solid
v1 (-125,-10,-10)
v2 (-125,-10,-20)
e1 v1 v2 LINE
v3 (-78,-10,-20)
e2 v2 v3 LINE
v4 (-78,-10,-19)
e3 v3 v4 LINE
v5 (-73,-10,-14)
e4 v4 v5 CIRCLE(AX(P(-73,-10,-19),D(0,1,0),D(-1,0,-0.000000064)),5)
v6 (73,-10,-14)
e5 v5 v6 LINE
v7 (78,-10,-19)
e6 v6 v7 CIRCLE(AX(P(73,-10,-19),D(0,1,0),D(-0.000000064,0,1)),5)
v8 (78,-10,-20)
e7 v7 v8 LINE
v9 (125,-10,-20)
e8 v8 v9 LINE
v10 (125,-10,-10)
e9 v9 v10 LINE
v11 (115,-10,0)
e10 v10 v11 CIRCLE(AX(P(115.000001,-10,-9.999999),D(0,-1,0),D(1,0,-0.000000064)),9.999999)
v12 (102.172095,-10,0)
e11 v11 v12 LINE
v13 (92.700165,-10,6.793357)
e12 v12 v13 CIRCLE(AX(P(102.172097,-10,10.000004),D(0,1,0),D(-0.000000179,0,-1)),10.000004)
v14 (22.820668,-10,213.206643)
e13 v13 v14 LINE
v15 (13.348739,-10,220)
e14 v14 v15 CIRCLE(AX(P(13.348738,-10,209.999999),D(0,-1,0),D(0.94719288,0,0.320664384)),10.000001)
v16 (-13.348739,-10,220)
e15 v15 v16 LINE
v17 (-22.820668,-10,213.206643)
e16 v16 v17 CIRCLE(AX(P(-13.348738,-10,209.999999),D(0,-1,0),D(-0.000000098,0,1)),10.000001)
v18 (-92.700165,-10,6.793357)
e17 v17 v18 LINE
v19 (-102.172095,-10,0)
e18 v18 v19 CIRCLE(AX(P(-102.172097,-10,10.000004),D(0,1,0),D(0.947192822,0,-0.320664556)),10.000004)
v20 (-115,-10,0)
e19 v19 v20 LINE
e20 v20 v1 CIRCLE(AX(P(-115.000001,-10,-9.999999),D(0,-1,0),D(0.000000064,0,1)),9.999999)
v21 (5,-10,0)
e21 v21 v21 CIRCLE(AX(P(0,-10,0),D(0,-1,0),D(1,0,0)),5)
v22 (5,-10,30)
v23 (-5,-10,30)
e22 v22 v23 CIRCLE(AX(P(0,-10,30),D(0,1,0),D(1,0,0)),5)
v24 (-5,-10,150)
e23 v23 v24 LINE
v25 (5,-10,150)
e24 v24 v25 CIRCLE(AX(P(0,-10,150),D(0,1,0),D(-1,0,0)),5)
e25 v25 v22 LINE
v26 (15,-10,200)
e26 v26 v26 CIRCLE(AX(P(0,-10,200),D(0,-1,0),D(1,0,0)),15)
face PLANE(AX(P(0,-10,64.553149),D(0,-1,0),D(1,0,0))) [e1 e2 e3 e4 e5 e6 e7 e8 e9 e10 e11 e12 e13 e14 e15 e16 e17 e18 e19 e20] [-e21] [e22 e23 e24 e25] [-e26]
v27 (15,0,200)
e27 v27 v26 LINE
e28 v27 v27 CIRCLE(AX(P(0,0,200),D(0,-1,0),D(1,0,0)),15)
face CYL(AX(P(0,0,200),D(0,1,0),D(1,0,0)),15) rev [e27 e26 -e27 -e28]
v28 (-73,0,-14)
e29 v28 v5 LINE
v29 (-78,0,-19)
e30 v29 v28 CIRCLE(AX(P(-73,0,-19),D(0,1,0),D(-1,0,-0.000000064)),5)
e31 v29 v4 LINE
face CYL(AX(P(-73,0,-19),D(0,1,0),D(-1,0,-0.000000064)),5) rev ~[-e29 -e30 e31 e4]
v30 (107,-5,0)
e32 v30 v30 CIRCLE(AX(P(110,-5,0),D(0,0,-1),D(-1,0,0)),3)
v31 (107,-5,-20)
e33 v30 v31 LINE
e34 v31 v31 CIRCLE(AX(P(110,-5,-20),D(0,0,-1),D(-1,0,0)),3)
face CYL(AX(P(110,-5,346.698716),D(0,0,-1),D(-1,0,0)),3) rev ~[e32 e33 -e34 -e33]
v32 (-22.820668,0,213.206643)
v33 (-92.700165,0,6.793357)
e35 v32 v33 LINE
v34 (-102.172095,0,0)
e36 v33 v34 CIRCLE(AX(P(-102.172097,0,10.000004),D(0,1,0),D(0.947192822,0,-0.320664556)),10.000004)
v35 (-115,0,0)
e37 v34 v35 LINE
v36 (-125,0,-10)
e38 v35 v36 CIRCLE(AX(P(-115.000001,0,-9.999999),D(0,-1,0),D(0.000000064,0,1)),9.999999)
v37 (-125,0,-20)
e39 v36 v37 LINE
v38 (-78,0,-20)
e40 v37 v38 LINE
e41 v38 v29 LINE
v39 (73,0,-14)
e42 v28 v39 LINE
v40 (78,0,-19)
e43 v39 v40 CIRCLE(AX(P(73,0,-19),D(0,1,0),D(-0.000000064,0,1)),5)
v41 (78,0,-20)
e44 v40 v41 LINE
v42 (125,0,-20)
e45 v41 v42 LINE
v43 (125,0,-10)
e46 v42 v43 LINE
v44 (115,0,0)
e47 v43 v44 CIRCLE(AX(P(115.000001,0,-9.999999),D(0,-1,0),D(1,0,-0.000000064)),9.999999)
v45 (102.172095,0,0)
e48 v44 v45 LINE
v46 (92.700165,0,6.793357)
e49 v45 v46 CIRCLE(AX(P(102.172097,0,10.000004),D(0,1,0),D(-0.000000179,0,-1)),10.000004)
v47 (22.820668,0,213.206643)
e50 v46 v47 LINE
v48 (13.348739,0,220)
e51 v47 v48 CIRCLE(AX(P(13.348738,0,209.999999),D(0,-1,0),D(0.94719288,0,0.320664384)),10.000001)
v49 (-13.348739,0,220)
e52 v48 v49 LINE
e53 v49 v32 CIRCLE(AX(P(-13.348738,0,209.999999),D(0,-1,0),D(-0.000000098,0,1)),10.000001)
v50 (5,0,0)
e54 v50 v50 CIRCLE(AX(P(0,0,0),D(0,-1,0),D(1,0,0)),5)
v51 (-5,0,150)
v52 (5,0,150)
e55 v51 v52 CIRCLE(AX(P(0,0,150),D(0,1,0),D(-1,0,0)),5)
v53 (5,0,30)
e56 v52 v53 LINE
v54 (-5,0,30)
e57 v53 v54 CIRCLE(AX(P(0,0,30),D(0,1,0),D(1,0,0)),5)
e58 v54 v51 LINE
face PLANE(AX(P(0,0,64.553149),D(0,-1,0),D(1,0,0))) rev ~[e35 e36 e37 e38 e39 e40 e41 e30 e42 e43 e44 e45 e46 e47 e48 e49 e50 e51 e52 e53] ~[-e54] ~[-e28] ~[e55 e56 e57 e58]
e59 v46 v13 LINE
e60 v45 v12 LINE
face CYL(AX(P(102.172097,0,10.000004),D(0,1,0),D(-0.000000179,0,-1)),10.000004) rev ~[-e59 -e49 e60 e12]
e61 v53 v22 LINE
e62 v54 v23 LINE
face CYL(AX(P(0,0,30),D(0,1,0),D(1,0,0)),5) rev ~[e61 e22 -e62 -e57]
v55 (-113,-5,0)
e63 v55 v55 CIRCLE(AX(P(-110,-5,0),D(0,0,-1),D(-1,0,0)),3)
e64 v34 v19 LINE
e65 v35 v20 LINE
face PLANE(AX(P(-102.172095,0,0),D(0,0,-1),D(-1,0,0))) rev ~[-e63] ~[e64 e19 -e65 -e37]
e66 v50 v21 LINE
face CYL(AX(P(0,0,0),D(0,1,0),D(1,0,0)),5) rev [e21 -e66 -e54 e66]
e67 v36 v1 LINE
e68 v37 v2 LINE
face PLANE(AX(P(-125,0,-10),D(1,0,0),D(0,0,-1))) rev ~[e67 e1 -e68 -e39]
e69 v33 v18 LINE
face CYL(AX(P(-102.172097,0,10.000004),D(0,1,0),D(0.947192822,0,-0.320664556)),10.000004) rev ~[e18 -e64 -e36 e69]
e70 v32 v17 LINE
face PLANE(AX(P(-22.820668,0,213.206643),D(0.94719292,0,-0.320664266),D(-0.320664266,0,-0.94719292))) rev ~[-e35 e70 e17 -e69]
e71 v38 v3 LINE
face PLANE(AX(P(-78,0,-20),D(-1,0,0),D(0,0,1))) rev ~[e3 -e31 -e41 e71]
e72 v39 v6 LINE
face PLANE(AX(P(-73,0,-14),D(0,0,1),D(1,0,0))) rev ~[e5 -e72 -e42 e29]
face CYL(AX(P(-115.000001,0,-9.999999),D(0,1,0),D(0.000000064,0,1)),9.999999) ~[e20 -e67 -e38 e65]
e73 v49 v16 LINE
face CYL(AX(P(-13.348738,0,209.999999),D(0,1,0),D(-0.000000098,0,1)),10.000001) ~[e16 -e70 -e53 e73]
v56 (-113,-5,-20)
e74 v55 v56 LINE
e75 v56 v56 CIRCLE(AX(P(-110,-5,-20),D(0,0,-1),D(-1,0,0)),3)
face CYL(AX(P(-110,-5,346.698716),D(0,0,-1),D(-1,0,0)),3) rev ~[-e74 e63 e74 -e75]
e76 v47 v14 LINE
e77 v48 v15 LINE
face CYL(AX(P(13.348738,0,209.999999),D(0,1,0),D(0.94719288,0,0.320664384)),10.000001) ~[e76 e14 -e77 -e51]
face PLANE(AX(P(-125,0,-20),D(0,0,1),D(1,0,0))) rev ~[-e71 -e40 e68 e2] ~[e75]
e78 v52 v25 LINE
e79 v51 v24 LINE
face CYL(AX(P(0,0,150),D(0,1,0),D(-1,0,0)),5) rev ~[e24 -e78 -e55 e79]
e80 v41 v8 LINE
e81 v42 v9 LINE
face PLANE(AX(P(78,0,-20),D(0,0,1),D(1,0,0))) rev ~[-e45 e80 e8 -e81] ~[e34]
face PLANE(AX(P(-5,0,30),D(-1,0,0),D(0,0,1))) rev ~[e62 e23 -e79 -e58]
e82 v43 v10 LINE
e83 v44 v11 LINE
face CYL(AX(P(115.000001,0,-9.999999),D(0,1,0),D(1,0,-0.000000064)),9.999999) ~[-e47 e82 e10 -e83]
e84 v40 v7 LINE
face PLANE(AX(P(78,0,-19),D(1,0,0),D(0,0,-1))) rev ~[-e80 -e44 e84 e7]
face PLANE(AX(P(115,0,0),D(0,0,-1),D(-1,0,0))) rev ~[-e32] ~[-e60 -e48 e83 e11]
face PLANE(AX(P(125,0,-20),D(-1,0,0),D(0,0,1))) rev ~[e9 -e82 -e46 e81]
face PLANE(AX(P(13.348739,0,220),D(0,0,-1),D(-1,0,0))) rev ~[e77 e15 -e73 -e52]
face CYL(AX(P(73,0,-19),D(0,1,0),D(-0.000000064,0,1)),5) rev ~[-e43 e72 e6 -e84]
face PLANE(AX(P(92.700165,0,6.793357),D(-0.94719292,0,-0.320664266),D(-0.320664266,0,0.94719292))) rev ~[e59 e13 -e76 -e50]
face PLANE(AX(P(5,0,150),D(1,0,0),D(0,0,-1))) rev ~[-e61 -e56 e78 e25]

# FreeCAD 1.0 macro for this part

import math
import FreeCAD as App
import Part
import Sketcher

V = App.Vector

doc = App.newDocument("Part")
body = doc.addObject("PartDesign::Body", "Body")

# Sketch on XZ plane
sketch1 = body.newObject("Sketcher::SketchObject", "Sketch")
sketch1.AttachmentSupport = (doc.getObject("XZ_Plane"), [""])
sketch1.MapMode = "FlatFace"
sketch1.addGeometry(Part.LineSegment(V(-125, -10, 0), V(-125, -20, 0)), False)
sketch1.addGeometry(Part.LineSegment(V(-125, -20, 0), V(-78, -20, 0)), False)
sketch1.addGeometry(Part.LineSegment(V(-78, -20, 0), V(-78, -19, 0)), False)
sketch1.addGeometry(Part.ArcOfCircle(Part.Circle(V(-73, -19, 0), V(0, 0, 1), 5), math.radians(90), math.radians(180)), False)
sketch1.addGeometry(Part.LineSegment(V(-73, -14, 0), V(73, -14, 0)), False)
sketch1.addGeometry(Part.ArcOfCircle(Part.Circle(V(73, -19, 0), V(0, 0, 1), 5), math.radians(0), math.radians(90)), False)
sketch1.addGeometry(Part.LineSegment(V(78, -19, 0), V(78, -20, 0)), False)
sketch1.addGeometry(Part.LineSegment(V(78, -20, 0), V(125, -20, 0)), False)
sketch1.addGeometry(Part.LineSegment(V(125, -20, 0), V(125, -10, 0)), False)
sketch1.addGeometry(Part.ArcOfCircle(Part.Circle(V(115, -10, 0), V(0, 0, 1), 10), math.radians(0), math.radians(90)), False)
sketch1.addGeometry(Part.LineSegment(V(115, 0, 0), V(102.2, 0, 0)), False)
sketch1.addGeometry(Part.ArcOfCircle(Part.Circle(V(102.2, 10, 0), V(0, 0, 1), 10), math.radians(-161), math.radians(-90)), False)
sketch1.addGeometry(Part.LineSegment(V(92.7, 6.8, 0), V(22.8, 213.2, 0)), False)
sketch1.addGeometry(Part.ArcOfCircle(Part.Circle(V(13.3, 210, 0), V(0, 0, 1), 10), math.radians(19), math.radians(90)), False)
sketch1.addGeometry(Part.LineSegment(V(13.3, 220, 0), V(-13.3, 220, 0)), False)
sketch1.addGeometry(Part.ArcOfCircle(Part.Circle(V(-13.3, 210, 0), V(0, 0, 1), 10), math.radians(90), math.radians(161)), False)
sketch1.addGeometry(Part.LineSegment(V(-22.8, 213.2, 0), V(-92.7, 6.8, 0)), False)
sketch1.addGeometry(Part.ArcOfCircle(Part.Circle(V(-102.2, 10, 0), V(0, 0, 1), 10), math.radians(-90), math.radians(-19)), False)
sketch1.addGeometry(Part.LineSegment(V(-102.2, 0, 0), V(-115, 0, 0)), False)
sketch1.addGeometry(Part.ArcOfCircle(Part.Circle(V(-115, -10, 0), V(0, 0, 1), 10), math.radians(90), math.radians(180)), False)
sketch1.addGeometry(Part.Circle(V(0, 0, 0), V(0, 0, 1), 5), False)
sketch1.addGeometry(Part.LineSegment(V(-5, 30, 0), V(-5, 150, 0)), False)
sketch1.addGeometry(Part.ArcOfCircle(Part.Circle(V(0, 150, 0), V(0, 0, 1), 5), math.radians(0), math.radians(180)), False)
sketch1.addGeometry(Part.LineSegment(V(5, 150, 0), V(5, 30, 0)), False)
sketch1.addGeometry(Part.ArcOfCircle(Part.Circle(V(0, 30, 0), V(0, 0, 1), 5), math.radians(180), math.radians(360)), False)
sketch1.addGeometry(Part.Circle(V(0, 200, 0), V(0, 0, 1), 15), False)
sketch1.addConstraint(Sketcher.Constraint("Coincident", 0, 2, 1, 1))
sketch1.addConstraint(Sketcher.Constraint("Coincident", 1, 2, 2, 1))
sketch1.addConstraint(Sketcher.Constraint("Tangent", 2, 2, 3, 2))
sketch1.addConstraint(Sketcher.Constraint("Tangent", 3, 1, 4, 1))
sketch1.addConstraint(Sketcher.Constraint("Tangent", 4, 2, 5, 2))
sketch1.addConstraint(Sketcher.Constraint("Tangent", 5, 1, 6, 1))
sketch1.addConstraint(Sketcher.Constraint("Coincident", 6, 2, 7, 1))
sketch1.addConstraint(Sketcher.Constraint("Coincident", 7, 2, 8, 1))
sketch1.addConstraint(Sketcher.Constraint("Tangent", 8, 2, 9, 1))
sketch1.addConstraint(Sketcher.Constraint("Tangent", 9, 2, 10, 1))
sketch1.addConstraint(Sketcher.Constraint("Tangent", 10, 2, 11, 2))
sketch1.addConstraint(Sketcher.Constraint("Tangent", 11, 1, 12, 1))
sketch1.addConstraint(Sketcher.Constraint("Tangent", 12, 2, 13, 1))
sketch1.addConstraint(Sketcher.Constraint("Tangent", 13, 2, 14, 1))
sketch1.addConstraint(Sketcher.Constraint("Tangent", 14, 2, 15, 1))
sketch1.addConstraint(Sketcher.Constraint("Tangent", 15, 2, 16, 1))
sketch1.addConstraint(Sketcher.Constraint("Tangent", 16, 2, 17, 2))
sketch1.addConstraint(Sketcher.Constraint("Tangent", 17, 1, 18, 1))
sketch1.addConstraint(Sketcher.Constraint("Tangent", 18, 2, 19, 1))
sketch1.addConstraint(Sketcher.Constraint("Tangent", 19, 2, 0, 1))
sketch1.addConstraint(Sketcher.Constraint("Tangent", 21, 2, 22, 2))
sketch1.addConstraint(Sketcher.Constraint("Tangent", 22, 1, 23, 1))
sketch1.addConstraint(Sketcher.Constraint("Tangent", 23, 2, 24, 2))
sketch1.addConstraint(Sketcher.Constraint("Tangent", 24, 1, 21, 1))
sketch1.addConstraint(Sketcher.Constraint("Vertical", 0))
sketch1.addConstraint(Sketcher.Constraint("Horizontal", 1))
sketch1.addConstraint(Sketcher.Constraint("Vertical", 2))
sketch1.addConstraint(Sketcher.Constraint("Horizontal", 4))
sketch1.addConstraint(Sketcher.Constraint("Vertical", 6))
sketch1.addConstraint(Sketcher.Constraint("Horizontal", 7))
sketch1.addConstraint(Sketcher.Constraint("Vertical", 8))
sketch1.addConstraint(Sketcher.Constraint("Horizontal", 10))
sketch1.addConstraint(Sketcher.Constraint("Horizontal", 14))
sketch1.addConstraint(Sketcher.Constraint("Horizontal", 18))
sketch1.addConstraint(Sketcher.Constraint("Vertical", 21))
sketch1.addConstraint(Sketcher.Constraint("Vertical", 23))
sketch1.addConstraint(Sketcher.Constraint("Coincident", 20, 3, -1, 1))
sketch1.addConstraint(Sketcher.Constraint("Equal", 3, 5))
sketch1.addConstraint(Sketcher.Constraint("Equal", 9, 13))
sketch1.addConstraint(Sketcher.Constraint("Equal", 13, 15))
sketch1.addConstraint(Sketcher.Constraint("Equal", 11, 17))
sketch1.addConstraint(Sketcher.Constraint("Equal", 15, 19))
sketch1.addConstraint(Sketcher.Constraint("Equal", 5, 20))
sketch1.addConstraint(Sketcher.Constraint("Equal", 20, 22))
sketch1.addConstraint(Sketcher.Constraint("Symmetric", 10, 2, 17, 1, -1, 1))
sketch1.addConstraint(Sketcher.Constraint("Symmetric", 9, 3, 19, 3, -2))
sketch1.addConstraint(Sketcher.Constraint("Symmetric", 1, 2, 6, 2, -2))
sketch1.addConstraint(Sketcher.Constraint("PointOnObject", 22, 3, -2))
sketch1.addConstraint(Sketcher.Constraint("PointOnObject", 25, 3, -2))
sketch1.addConstraint(Sketcher.Constraint("Horizontal", 12, 2, 15, 2))
sketch1.addConstraint(Sketcher.Constraint("Diameter", 20, 10.0))
sketch1.addConstraint(Sketcher.Constraint("Diameter", 25, 30.0))
sketch1.addConstraint(Sketcher.Constraint("Radius", 9, 9.999999))
sketch1.addConstraint(Sketcher.Constraint("DistanceX", 1, 1, 1, 2, 47.0))
sketch1.addConstraint(Sketcher.Constraint("DistanceX", 4, 1, 4, 2, 146.0))
sketch1.addConstraint(Sketcher.Constraint("DistanceY", 0, 2, 0, 1, 10.0))
sketch1.addConstraint(Sketcher.Constraint("DistanceY", 2, 1, 2, 2, 1.0))
sketch1.addConstraint(Sketcher.Constraint("DistanceY", 21, 1, 21, 2, 120.0))
sketch1.addConstraint(Sketcher.Constraint("DistanceY", -1, 1, 13, 3, 209.999999))
sketch1.addConstraint(Sketcher.Constraint("DistanceY", -1, 1, 22, 3, 150.0))
sketch1.addConstraint(Sketcher.Constraint("DistanceY", -1, 1, 25, 3, 200.0))
sketch1.addConstraint(Sketcher.Constraint("Radius", 11, 10.000004))
sketch1.addConstraint(Sketcher.Constraint("DistanceX", 14, 2, 14, 1, 26.697478))
sketch1.addConstraint(Sketcher.Constraint("Distance", 12, 217.921061))
pad1 = body.newObject("PartDesign::Pad", "Pad")
pad1.Profile = sketch1
pad1.Length = 10

# Sketch on XY plane
sketch2 = body.newObject("Sketcher::SketchObject", "Sketch001")
sketch2.AttachmentSupport = (doc.getObject("XY_Plane"), [""])
sketch2.MapMode = "FlatFace"
sketch2.addGeometry(Part.Circle(V(-110, -5, 0), V(0, 0, 1), 3), False)
sketch2.addGeometry(Part.Circle(V(110, -5, 0), V(0, 0, 1), 3), False)
sketch2.addConstraint(Sketcher.Constraint("Equal", 0, 1))
sketch2.addConstraint(Sketcher.Constraint("Symmetric", 0, 3, 1, 3, -2))
sketch2.addConstraint(Sketcher.Constraint("Diameter", 0, 6.0))
sketch2.addConstraint(Sketcher.Constraint("DistanceX", 0, 3, -1, 1, 110.0))
sketch2.addConstraint(Sketcher.Constraint("DistanceY", 0, 3, -1, 1, 5.0))
doc.recompute()
hole = body.newObject("PartDesign::Hole", "Hole")
hole.Profile = sketch2
hole.ThreadType = "None"
hole.Diameter = 6
hole.DepthType = "ThroughAll"

doc.recompute()
